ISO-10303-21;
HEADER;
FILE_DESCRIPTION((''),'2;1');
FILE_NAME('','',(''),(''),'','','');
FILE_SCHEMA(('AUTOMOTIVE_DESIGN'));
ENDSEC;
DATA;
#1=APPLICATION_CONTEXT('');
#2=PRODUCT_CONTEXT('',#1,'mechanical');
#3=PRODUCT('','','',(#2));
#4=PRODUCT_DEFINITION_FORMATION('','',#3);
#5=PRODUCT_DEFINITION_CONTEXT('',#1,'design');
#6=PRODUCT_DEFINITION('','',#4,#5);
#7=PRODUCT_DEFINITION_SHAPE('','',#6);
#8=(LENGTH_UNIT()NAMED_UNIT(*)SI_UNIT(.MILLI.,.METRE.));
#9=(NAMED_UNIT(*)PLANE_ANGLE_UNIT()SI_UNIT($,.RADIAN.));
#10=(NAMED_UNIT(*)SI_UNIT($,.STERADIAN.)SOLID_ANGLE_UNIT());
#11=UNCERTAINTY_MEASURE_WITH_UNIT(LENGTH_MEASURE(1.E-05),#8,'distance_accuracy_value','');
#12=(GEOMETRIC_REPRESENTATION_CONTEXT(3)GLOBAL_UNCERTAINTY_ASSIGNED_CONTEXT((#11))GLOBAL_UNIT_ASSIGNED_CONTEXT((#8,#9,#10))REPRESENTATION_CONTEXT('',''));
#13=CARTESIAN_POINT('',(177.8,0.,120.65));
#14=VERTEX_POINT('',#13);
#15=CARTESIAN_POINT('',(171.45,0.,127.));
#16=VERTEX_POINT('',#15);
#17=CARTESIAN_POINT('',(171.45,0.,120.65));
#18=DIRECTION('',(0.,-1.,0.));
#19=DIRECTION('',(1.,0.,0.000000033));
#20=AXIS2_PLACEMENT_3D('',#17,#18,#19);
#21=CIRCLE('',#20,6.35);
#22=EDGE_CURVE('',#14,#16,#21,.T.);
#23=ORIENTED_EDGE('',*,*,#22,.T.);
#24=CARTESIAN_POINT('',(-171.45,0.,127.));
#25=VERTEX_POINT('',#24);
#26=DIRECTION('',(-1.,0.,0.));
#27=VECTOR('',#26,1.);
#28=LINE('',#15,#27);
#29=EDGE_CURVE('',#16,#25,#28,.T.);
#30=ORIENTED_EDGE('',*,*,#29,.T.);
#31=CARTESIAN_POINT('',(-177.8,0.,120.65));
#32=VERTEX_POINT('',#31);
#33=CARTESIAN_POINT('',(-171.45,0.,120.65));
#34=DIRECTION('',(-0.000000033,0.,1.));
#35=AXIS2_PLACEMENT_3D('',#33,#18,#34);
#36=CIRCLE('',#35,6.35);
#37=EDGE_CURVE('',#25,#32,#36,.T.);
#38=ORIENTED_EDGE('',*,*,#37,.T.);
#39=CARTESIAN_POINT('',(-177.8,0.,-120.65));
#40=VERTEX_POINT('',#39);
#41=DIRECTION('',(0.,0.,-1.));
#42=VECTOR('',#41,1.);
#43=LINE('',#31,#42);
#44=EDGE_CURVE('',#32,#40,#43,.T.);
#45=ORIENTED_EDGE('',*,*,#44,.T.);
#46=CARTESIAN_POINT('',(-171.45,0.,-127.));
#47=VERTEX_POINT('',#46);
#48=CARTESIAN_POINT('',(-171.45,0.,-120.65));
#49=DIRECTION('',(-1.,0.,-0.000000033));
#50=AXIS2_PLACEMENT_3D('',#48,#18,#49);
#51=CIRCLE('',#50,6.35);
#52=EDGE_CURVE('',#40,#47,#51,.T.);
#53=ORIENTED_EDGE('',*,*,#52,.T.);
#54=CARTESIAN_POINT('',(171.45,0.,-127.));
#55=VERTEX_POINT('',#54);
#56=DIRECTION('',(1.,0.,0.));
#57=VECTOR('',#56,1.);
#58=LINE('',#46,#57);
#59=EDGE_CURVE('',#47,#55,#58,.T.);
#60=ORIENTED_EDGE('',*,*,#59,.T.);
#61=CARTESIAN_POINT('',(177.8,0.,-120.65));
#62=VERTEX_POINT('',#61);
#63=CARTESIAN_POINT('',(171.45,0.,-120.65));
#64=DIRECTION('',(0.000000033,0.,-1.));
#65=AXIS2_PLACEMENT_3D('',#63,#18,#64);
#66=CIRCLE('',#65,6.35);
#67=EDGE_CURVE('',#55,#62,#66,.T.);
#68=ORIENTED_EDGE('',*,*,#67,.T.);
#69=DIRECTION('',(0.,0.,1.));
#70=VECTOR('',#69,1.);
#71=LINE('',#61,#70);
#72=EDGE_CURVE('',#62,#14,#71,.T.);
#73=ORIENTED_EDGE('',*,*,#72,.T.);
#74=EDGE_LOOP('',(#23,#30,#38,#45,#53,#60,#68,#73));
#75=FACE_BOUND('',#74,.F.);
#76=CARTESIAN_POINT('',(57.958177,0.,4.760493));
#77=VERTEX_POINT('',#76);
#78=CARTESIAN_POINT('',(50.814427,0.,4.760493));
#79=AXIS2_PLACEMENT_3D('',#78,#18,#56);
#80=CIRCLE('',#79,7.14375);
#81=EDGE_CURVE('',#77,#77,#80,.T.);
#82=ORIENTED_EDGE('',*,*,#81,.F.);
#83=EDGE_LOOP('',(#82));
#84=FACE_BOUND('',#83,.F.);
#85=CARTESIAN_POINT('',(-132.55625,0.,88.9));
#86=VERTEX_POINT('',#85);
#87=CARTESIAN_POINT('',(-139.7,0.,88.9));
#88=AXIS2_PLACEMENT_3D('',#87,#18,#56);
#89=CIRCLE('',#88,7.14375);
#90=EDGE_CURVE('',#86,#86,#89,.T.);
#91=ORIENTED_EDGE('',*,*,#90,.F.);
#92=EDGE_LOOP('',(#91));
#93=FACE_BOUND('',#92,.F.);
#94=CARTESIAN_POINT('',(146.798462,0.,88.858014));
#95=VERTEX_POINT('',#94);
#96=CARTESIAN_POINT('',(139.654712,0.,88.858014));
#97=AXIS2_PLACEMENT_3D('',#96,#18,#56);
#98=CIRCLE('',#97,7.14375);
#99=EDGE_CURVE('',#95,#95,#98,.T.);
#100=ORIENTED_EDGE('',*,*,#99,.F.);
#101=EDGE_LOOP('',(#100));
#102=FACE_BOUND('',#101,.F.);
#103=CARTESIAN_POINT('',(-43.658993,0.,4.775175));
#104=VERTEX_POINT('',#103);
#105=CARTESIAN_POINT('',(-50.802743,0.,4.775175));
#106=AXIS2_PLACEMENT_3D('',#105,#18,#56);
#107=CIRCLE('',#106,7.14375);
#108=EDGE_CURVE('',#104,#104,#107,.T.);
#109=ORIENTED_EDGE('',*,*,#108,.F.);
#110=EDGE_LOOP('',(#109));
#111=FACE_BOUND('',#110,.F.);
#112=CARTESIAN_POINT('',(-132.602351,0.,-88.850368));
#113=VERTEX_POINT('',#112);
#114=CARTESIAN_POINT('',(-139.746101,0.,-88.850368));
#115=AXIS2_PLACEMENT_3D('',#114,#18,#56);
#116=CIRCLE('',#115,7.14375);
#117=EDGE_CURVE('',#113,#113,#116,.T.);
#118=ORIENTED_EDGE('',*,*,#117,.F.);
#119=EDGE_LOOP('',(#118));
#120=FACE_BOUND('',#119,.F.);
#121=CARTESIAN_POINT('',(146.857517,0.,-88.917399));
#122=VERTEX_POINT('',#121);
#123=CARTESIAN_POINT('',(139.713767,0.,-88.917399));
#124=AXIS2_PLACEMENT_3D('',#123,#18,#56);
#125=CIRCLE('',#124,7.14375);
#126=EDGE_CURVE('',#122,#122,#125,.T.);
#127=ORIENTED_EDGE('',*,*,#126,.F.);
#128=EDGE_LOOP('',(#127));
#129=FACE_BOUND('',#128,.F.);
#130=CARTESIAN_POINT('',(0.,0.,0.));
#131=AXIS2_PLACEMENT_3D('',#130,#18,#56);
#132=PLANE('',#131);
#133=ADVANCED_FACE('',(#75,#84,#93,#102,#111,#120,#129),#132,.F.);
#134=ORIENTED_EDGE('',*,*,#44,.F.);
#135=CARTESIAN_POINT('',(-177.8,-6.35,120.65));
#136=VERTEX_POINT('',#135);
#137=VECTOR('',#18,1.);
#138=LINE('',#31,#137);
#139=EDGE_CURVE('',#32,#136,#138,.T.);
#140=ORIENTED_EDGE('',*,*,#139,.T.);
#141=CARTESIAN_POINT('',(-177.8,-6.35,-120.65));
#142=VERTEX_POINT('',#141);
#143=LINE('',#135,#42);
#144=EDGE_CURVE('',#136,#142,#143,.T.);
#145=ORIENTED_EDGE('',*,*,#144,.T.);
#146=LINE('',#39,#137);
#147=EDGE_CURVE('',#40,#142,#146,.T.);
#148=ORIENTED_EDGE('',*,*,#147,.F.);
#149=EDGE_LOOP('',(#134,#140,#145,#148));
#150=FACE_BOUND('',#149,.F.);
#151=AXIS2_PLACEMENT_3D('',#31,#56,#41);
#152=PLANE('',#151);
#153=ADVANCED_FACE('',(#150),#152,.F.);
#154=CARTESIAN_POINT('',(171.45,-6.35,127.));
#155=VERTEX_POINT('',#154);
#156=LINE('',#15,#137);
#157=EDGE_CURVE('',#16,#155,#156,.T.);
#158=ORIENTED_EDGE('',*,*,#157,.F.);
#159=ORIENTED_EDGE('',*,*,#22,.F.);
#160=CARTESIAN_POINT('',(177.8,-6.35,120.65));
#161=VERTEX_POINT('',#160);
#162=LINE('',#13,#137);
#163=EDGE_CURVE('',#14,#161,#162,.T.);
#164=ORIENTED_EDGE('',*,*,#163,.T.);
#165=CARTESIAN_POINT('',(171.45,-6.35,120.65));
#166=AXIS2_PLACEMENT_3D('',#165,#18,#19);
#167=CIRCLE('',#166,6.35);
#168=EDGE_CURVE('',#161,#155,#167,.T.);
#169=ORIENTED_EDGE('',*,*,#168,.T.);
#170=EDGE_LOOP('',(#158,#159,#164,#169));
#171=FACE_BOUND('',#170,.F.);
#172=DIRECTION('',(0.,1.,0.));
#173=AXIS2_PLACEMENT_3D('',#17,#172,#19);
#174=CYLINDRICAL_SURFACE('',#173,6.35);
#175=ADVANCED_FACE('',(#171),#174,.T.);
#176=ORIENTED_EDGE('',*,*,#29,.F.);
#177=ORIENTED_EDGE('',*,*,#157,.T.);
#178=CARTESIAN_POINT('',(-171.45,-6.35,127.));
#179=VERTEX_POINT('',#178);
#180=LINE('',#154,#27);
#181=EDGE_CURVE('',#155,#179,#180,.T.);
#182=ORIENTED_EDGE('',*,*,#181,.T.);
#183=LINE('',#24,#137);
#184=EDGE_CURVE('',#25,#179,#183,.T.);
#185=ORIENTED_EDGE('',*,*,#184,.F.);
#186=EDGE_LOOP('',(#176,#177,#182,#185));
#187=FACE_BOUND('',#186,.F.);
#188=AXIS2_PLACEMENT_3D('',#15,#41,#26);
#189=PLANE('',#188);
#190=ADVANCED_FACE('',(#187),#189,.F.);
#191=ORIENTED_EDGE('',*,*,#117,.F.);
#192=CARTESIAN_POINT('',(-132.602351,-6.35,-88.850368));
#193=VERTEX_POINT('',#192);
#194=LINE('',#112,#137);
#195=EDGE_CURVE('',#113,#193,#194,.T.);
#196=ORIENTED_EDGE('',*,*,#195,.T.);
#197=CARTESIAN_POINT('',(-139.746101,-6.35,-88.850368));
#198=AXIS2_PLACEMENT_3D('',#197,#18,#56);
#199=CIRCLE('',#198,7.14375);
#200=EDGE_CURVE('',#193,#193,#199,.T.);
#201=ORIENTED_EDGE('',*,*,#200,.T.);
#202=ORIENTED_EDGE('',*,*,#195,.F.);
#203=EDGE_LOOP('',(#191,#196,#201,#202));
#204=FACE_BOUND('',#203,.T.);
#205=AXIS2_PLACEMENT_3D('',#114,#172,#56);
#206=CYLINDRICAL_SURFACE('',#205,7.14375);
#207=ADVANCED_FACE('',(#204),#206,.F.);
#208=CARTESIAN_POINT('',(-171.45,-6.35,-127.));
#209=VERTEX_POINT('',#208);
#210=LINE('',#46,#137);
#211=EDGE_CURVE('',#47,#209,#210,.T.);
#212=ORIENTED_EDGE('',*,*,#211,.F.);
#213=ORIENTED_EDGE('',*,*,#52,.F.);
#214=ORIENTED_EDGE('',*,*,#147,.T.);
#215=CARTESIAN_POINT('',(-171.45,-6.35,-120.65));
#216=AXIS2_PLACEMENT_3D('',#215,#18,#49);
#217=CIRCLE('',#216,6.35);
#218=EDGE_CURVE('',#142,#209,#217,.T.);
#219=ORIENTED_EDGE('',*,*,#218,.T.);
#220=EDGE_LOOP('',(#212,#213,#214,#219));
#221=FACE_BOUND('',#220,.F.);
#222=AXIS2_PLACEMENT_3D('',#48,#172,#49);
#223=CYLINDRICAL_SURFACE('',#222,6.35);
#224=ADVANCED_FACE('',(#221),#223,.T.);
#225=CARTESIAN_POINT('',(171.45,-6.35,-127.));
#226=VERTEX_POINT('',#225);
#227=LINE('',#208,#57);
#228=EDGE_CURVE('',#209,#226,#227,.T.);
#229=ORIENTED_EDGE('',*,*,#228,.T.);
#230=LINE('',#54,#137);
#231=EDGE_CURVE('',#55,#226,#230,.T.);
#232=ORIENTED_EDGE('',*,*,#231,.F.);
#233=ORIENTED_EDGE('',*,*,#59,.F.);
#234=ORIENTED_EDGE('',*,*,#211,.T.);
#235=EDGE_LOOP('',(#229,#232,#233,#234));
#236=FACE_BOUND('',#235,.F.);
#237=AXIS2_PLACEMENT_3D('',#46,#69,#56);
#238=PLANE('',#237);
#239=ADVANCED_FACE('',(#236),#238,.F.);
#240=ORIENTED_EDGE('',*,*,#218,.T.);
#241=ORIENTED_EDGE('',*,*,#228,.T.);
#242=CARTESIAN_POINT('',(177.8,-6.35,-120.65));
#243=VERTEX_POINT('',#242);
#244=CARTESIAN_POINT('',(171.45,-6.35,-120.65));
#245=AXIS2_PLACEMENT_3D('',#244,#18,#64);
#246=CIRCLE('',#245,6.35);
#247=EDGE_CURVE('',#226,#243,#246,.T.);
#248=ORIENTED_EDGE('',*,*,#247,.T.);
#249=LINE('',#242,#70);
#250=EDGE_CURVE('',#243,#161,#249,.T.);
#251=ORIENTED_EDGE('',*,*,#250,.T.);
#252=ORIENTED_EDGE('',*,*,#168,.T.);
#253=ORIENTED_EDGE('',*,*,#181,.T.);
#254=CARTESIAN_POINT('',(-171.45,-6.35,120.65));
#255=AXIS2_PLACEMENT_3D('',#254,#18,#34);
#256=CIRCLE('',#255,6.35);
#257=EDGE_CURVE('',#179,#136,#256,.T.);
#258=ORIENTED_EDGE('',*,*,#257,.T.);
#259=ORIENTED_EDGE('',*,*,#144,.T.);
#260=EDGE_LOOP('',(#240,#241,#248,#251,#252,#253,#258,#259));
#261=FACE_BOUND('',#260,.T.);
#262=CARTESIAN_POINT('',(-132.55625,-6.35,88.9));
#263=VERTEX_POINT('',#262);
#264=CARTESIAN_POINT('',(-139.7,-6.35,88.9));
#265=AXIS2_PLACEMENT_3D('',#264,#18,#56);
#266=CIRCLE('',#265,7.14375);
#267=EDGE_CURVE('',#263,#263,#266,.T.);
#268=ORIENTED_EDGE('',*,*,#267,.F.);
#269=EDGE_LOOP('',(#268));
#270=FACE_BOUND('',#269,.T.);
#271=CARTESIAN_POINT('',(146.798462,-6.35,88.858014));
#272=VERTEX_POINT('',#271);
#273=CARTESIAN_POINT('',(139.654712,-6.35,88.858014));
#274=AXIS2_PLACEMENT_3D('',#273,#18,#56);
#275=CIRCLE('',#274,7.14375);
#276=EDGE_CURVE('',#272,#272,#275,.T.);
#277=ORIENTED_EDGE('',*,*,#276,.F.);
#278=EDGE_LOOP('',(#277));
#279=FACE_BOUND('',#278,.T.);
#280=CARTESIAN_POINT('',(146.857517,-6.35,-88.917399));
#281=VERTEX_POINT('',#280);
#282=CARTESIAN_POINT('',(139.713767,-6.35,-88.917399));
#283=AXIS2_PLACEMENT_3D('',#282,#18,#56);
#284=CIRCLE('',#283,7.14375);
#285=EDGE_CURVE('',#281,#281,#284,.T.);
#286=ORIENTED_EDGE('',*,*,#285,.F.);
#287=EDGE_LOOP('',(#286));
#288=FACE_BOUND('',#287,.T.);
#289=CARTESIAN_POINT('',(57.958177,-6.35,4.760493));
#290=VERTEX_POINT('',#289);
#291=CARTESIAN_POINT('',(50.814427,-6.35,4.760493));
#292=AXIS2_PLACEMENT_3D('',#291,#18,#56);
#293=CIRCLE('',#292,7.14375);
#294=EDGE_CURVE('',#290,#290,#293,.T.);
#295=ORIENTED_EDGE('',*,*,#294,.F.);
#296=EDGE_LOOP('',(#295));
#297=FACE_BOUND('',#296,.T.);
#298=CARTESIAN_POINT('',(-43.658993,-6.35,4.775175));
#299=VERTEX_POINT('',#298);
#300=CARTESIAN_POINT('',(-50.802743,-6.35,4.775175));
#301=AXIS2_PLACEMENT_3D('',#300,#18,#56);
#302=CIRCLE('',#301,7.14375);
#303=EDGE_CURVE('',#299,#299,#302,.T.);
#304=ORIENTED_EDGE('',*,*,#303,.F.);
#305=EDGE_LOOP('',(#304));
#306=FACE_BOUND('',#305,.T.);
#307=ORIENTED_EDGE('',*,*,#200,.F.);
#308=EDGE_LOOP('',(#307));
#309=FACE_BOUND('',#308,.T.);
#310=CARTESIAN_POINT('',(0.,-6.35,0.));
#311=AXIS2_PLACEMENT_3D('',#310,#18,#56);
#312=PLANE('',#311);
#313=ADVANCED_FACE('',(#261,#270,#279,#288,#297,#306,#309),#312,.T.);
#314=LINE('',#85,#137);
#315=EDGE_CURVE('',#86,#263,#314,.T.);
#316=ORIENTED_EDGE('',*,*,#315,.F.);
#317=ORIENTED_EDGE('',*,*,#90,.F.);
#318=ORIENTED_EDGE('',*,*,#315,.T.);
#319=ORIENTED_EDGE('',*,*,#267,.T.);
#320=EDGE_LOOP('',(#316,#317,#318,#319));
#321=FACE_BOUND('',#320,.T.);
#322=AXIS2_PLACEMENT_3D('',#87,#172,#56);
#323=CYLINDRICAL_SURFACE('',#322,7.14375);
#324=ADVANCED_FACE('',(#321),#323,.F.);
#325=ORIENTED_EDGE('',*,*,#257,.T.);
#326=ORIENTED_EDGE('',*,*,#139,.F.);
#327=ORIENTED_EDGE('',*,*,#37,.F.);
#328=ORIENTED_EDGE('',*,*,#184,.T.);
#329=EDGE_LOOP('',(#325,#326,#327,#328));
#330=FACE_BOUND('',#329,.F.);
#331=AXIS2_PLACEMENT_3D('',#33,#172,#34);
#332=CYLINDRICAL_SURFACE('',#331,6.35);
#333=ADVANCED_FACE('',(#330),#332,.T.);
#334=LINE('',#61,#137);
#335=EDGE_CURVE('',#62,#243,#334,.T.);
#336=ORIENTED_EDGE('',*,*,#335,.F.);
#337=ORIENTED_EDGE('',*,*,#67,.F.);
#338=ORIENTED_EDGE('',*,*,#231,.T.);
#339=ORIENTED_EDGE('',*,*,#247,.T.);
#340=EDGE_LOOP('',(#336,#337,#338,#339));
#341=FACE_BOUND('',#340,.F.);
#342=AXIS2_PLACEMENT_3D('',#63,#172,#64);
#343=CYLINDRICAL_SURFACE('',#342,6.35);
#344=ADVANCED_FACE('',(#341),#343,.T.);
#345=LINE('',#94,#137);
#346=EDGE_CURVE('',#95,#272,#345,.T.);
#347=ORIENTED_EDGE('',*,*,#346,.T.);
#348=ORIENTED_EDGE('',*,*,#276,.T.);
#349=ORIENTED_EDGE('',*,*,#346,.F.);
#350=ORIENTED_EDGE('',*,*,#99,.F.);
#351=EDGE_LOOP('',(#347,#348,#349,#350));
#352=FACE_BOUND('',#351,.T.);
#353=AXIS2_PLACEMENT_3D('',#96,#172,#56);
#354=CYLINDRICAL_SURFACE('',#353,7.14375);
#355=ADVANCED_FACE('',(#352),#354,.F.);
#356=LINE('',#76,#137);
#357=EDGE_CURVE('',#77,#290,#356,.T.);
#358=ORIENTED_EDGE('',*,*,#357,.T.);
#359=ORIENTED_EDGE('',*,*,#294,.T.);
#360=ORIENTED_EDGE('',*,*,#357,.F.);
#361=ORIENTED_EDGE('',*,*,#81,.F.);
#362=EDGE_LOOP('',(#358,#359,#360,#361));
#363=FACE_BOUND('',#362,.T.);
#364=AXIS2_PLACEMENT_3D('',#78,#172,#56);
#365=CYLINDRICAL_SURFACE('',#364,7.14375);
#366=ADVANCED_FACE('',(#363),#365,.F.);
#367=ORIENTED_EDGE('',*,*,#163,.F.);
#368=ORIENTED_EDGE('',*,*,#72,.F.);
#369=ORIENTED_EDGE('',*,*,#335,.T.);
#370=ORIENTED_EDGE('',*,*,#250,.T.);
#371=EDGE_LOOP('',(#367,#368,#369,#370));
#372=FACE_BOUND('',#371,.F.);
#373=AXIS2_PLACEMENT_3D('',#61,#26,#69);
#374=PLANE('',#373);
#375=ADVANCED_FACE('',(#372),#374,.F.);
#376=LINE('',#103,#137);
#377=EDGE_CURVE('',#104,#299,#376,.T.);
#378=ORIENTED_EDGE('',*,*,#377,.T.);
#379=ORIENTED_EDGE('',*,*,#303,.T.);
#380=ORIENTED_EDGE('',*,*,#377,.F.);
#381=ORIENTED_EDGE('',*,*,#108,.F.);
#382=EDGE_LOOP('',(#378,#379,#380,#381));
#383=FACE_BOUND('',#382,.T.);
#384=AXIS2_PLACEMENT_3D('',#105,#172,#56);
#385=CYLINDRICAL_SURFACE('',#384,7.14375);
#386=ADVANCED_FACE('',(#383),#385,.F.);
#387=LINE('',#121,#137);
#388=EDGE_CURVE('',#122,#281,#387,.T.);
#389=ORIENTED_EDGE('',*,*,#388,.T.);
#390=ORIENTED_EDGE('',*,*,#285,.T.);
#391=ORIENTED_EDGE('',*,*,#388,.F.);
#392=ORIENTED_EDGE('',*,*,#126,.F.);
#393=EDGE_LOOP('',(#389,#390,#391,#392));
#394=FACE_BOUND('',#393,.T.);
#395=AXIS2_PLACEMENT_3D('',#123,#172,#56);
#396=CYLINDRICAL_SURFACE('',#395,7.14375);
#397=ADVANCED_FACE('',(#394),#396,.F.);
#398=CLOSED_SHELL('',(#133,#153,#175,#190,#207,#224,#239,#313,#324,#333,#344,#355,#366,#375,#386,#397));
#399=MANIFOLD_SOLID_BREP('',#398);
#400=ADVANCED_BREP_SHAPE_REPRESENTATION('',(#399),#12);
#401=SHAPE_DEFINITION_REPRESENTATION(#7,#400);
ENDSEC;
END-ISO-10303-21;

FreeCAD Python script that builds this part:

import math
import FreeCAD as App
import Part
import Sketcher
Q = App.Units.Quantity

doc = App.newDocument("Part")
params = doc.addObject("Spreadsheet::Sheet", "Params")
for row, (alias, value) in enumerate([
    ("sketch1_radius", "0.25 in"),
    ("sketch1_diameter", "0.5625 in"),
    ("sketch1_width", "13.5 in"),
    ("sketch1_height", "9.5 in"),
    ("pad1_length", "0.25 in"),
], start=1):
    params.set(f"A{row}", alias)
    params.set(f"B{row}", "=" + value)
    params.setAlias(f"B{row}", alias)

body = doc.addObject("PartDesign::Body", "Body")

sketch1 = body.newObject("Sketcher::SketchObject", "Sketch")
sketch1.AttachmentSupport = (doc.getObject("XZ_Plane"), [""])
sketch1.MapMode = "FlatFace"
sketch1.addGeometry([
    Part.ArcOfCircle(Part.Circle(App.Vector(-171.45, 120.65, 0), App.Vector(0, 0, 1), 6.35), math.radians(90.000002), math.radians(179.999998)),
    Part.LineSegment(App.Vector(-177.8, 120.65, 0), App.Vector(-177.8, -120.65, 0)),
    Part.ArcOfCircle(Part.Circle(App.Vector(-171.45, -120.65, 0), App.Vector(0, 0, 1), 6.35), math.radians(-179.999998), math.radians(-90.000002)),
    Part.LineSegment(App.Vector(-171.45, -127, 0), App.Vector(171.45, -127, 0)),
    Part.ArcOfCircle(Part.Circle(App.Vector(171.45, -120.65, 0), App.Vector(0, 0, 1), 6.35), math.radians(-89.999998), math.radians(-0.000002)),
    Part.LineSegment(App.Vector(177.8, -120.65, 0), App.Vector(177.8, 120.65, 0)),
    Part.ArcOfCircle(Part.Circle(App.Vector(171.45, 120.65, 0), App.Vector(0, 0, 1), 6.35), math.radians(0.000002), math.radians(89.999998)),
    Part.LineSegment(App.Vector(171.45, 127, 0), App.Vector(-171.45, 127, 0)),
    Part.Circle(App.Vector(-139.746101, -88.850368, 0), App.Vector(0, 0, 1), 7.14375),
    Part.Circle(App.Vector(139.713767, -88.917399, 0), App.Vector(0, 0, 1), 7.14375),
    Part.Circle(App.Vector(-50.802743, 4.775175, 0), App.Vector(0, 0, 1), 7.14375),
    Part.Circle(App.Vector(-139.7, 88.9, 0), App.Vector(0, 0, 1), 7.14375),
    Part.Circle(App.Vector(50.814427, 4.760493, 0), App.Vector(0, 0, 1), 7.14375),
    Part.Circle(App.Vector(139.654712, 88.858014, 0), App.Vector(0, 0, 1), 7.14375),
], False)
sketch1.addConstraint([
    Sketcher.Constraint("Tangent", 0, 2, 1, 1),
    Sketcher.Constraint("Tangent", 1, 2, 2, 1),
    Sketcher.Constraint("Tangent", 2, 2, 3, 1),
    Sketcher.Constraint("Tangent", 3, 2, 4, 1),
    Sketcher.Constraint("Tangent", 4, 2, 5, 1),
    Sketcher.Constraint("Tangent", 5, 2, 6, 1),
    Sketcher.Constraint("Tangent", 6, 2, 7, 1),
    Sketcher.Constraint("Tangent", 7, 2, 0, 1),
    Sketcher.Constraint("Vertical", 1),
    Sketcher.Constraint("Horizontal", 3),
    Sketcher.Constraint("Vertical", 5),
    Sketcher.Constraint("Horizontal", 7),
    Sketcher.Constraint("Equal", 0, 2),
    Sketcher.Constraint("Equal", 2, 4),
    Sketcher.Constraint("Equal", 4, 6),
    Sketcher.Constraint("Equal", 8, 9),
    Sketcher.Constraint("Equal", 9, 10),
    Sketcher.Constraint("Equal", 10, 11),
    Sketcher.Constraint("Equal", 11, 12),
    Sketcher.Constraint("Equal", 12, 13),
    Sketcher.Constraint("Symmetric", 0, 3, 4, 3, -1, 1),
    Sketcher.Constraint("Radius", 0, Q("0.25 in")),
    Sketcher.Constraint("Diameter", 8, Q("0.5625 in")),
    Sketcher.Constraint("DistanceX", 3, 1, 3, 2, Q("13.5 in")),
    Sketcher.Constraint("DistanceY", 1, 2, 1, 1, Q("9.5 in")),
    Sketcher.Constraint("DistanceX", 11, 3, -1, 1, Q("5.5 in")),
    Sketcher.Constraint("DistanceY", -1, 1, 11, 3, Q("3.5 in")),
    Sketcher.Constraint("DistanceX", 8, 3, -1, 1, Q("139.746101 mm")),
    Sketcher.Constraint("DistanceY", 9, 3, -1, 1, Q("88.917399 mm")),
    Sketcher.Constraint("DistanceY", 8, 3, -1, 1, Q("88.850368 mm")),
    Sketcher.Constraint("DistanceX", -1, 1, 13, 3, Q("139.654712 mm")),
    Sketcher.Constraint("DistanceX", 8, 3, 9, 3, Q("279.459868 mm")),
    Sketcher.Constraint("DistanceX", 8, 3, 10, 3, Q("88.943358 mm")),
    Sketcher.Constraint("DistanceX", 10, 3, 12, 3, Q("101.61717 mm")),
    Sketcher.Constraint("DistanceY", 12, 3, 10, 3, Q("0.014682 mm")),
    Sketcher.Constraint("DistanceY", 9, 3, 12, 3, Q("93.677892 mm")),
    Sketcher.Constraint("DistanceY", 12, 3, 13, 3, Q("84.097521 mm")),
])
sketch1.setExpression("Constraints[21]", "Params.sketch1_radius")
sketch1.setExpression("Constraints[22]", "Params.sketch1_diameter")
sketch1.setExpression("Constraints[23]", "Params.sketch1_width")
sketch1.setExpression("Constraints[24]", "Params.sketch1_height")
pad1 = body.newObject("PartDesign::Pad", "Pad")
pad1.Profile = sketch1
pad1.setExpression("Length", "Params.pad1_length")

doc.recompute()
